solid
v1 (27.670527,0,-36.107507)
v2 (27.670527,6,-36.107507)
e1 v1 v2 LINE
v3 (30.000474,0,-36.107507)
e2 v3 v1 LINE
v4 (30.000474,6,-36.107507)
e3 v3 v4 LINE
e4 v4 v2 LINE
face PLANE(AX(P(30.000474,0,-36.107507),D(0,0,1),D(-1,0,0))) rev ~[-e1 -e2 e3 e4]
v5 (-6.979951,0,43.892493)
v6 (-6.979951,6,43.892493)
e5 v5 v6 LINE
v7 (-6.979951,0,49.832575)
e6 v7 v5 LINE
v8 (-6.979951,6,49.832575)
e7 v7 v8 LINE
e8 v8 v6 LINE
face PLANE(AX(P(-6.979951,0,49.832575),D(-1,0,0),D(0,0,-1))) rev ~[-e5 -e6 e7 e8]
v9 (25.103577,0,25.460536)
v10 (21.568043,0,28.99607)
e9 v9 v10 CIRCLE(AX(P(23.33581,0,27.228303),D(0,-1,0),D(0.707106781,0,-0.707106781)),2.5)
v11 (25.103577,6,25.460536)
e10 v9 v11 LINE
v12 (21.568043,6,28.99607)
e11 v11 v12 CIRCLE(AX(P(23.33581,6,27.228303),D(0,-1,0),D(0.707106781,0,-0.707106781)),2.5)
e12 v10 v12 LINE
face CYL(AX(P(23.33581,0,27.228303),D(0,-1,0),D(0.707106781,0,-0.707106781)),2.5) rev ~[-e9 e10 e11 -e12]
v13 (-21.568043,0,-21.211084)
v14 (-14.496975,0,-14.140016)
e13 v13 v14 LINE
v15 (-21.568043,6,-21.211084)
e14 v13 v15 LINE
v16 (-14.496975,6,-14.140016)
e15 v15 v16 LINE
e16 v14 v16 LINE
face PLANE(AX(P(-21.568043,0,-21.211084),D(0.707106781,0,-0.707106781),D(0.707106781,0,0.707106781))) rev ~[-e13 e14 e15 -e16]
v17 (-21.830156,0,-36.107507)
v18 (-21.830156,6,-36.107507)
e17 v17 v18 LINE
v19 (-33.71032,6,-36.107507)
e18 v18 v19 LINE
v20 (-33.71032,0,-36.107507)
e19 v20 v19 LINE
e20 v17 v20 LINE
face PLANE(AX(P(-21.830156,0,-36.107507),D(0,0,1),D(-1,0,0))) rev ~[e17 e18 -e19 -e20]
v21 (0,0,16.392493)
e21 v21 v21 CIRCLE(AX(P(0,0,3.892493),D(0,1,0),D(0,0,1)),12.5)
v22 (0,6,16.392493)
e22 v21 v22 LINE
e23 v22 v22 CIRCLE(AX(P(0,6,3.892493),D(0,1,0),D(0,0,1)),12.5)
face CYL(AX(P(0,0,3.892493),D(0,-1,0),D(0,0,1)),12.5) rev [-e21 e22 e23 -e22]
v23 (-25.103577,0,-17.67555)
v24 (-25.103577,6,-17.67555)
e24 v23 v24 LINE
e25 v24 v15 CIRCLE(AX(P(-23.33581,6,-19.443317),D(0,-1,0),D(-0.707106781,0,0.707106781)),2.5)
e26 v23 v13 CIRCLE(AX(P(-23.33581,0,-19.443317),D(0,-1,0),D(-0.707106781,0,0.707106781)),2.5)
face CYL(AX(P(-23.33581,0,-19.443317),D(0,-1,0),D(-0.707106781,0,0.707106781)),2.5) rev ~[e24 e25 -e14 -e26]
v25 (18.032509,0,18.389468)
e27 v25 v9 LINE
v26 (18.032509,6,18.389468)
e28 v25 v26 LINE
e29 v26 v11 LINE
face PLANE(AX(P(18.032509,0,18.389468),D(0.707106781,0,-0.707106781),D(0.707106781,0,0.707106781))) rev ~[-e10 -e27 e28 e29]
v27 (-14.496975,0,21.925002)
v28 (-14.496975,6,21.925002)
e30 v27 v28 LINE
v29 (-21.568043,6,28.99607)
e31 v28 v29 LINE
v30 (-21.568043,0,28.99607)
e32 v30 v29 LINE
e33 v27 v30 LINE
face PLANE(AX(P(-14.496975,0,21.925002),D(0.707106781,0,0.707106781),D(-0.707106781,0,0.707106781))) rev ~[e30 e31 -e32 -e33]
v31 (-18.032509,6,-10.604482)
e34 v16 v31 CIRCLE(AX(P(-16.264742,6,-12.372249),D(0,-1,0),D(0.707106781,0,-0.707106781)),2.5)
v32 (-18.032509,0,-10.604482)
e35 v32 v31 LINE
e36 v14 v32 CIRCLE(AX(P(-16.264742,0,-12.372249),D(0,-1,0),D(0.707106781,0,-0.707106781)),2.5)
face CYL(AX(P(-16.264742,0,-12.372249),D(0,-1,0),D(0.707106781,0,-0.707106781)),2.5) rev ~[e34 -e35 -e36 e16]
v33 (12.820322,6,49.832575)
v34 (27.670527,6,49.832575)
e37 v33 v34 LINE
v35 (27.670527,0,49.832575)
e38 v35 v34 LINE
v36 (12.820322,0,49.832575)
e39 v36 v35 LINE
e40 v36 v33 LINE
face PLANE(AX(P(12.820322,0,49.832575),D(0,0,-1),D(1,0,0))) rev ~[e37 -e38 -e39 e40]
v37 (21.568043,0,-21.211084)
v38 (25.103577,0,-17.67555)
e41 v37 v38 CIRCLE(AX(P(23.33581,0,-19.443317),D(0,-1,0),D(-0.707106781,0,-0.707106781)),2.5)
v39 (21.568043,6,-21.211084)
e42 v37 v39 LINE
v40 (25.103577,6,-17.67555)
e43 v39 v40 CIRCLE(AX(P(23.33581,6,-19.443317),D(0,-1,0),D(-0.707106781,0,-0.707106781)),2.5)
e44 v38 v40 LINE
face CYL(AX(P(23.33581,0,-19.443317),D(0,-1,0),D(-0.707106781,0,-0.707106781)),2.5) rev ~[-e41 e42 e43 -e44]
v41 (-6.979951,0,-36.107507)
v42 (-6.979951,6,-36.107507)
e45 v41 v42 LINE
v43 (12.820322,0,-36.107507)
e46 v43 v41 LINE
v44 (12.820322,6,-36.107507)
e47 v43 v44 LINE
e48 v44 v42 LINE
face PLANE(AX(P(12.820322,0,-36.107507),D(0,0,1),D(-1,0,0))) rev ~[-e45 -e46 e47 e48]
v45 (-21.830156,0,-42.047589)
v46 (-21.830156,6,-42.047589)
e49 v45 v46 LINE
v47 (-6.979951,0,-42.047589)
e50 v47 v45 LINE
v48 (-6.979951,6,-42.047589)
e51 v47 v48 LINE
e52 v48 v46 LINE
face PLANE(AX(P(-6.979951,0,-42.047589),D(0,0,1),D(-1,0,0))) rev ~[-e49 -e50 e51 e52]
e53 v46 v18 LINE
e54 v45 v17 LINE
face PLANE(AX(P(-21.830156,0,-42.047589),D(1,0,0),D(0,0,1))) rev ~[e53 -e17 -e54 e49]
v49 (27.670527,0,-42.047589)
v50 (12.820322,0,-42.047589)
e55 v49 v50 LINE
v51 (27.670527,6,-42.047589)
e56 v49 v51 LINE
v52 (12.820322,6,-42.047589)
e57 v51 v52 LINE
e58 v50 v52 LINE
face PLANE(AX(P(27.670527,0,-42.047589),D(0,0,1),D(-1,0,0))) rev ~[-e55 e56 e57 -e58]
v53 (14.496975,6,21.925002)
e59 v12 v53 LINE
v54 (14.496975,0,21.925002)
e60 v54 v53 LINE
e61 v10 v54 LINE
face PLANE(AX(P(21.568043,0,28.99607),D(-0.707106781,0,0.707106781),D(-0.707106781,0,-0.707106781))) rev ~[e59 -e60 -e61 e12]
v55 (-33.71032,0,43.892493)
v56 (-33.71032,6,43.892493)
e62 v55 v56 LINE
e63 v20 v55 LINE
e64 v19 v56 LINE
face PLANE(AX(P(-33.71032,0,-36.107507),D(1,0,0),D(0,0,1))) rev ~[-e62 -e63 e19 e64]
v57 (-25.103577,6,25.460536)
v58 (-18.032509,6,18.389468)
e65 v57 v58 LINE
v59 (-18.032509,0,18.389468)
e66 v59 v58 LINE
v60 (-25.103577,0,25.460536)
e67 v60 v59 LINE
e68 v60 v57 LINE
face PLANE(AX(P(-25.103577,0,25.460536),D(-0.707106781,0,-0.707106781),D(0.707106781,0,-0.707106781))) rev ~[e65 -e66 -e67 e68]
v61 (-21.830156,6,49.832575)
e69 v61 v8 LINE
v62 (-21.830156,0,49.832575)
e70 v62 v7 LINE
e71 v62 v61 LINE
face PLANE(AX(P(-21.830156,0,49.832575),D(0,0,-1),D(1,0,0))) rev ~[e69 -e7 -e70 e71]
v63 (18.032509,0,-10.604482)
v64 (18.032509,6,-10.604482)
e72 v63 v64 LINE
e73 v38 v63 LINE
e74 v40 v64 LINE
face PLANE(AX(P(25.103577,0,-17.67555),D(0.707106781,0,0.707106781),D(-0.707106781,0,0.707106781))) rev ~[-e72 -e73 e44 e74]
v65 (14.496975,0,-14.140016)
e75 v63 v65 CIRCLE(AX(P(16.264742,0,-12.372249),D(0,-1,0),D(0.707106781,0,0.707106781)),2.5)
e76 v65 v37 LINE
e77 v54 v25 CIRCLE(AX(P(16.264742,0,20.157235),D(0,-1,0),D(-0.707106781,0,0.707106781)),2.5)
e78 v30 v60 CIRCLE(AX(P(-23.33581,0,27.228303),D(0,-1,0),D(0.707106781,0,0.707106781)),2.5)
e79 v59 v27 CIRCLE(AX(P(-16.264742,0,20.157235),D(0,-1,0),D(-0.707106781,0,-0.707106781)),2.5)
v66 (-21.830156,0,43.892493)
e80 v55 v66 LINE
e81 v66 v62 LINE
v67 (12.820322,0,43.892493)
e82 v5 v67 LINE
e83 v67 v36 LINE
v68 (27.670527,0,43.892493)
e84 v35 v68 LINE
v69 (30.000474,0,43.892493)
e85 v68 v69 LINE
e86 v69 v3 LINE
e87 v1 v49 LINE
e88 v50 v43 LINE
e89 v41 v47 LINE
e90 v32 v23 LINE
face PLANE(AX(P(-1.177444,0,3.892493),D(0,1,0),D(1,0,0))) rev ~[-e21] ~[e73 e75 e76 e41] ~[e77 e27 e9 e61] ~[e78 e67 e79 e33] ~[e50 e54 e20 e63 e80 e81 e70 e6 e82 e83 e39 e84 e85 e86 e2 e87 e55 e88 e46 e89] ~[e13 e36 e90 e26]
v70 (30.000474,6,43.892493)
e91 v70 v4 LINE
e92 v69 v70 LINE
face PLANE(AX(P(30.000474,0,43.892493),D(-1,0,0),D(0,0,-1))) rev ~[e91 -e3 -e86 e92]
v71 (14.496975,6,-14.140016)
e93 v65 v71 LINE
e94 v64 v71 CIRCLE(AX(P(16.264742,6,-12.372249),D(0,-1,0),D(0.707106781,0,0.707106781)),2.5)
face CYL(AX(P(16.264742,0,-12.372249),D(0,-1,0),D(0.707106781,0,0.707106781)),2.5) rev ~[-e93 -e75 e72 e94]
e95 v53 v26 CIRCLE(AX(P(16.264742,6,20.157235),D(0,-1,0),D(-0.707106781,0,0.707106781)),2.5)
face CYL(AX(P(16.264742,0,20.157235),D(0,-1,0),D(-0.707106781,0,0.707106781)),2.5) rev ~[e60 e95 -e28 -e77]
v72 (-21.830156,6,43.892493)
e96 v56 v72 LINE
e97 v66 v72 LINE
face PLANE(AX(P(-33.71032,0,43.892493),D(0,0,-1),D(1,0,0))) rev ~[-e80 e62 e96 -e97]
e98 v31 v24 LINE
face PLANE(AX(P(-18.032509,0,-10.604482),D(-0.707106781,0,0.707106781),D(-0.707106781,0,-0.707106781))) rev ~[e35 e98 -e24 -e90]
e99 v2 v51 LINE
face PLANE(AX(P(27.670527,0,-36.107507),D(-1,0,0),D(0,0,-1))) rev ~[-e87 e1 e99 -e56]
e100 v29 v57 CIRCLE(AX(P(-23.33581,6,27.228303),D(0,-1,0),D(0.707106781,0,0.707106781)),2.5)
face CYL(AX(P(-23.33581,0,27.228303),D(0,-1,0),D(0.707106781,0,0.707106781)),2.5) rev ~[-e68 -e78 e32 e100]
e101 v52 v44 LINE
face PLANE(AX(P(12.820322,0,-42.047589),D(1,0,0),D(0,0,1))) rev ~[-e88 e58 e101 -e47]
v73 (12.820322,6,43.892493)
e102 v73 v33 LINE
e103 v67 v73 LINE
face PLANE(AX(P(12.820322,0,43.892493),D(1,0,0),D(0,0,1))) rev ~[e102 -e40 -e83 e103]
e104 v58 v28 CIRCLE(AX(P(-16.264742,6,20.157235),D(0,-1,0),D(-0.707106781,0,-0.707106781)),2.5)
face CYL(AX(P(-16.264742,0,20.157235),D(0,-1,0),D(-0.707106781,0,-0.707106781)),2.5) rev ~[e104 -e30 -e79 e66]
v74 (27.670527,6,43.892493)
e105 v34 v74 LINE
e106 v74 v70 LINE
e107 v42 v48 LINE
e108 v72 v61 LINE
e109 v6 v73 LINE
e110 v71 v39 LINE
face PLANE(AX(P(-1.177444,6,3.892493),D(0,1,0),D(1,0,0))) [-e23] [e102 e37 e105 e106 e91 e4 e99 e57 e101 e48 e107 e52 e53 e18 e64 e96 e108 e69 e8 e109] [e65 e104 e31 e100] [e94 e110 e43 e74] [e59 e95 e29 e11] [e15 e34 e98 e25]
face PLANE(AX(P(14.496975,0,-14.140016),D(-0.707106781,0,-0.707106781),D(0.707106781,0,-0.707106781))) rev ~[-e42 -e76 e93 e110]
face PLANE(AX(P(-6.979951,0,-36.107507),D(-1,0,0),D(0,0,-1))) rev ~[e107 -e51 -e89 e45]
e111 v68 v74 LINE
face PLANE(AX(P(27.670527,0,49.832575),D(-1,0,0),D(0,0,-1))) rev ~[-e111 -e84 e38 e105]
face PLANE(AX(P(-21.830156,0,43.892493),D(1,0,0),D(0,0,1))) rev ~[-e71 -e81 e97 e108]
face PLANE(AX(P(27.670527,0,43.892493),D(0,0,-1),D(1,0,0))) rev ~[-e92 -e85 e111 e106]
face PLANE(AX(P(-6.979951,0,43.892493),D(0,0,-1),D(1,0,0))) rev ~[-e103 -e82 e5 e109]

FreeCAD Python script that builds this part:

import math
import FreeCAD as App
import Part
import Sketcher

doc = App.newDocument("Part")
params = doc.addObject("Spreadsheet::Sheet", "Params")
for row, (alias, value) in enumerate([
    ("sketch1_diameter", "25 mm"),
    ("sketch1_radius", "2.5 mm"),
    ("sketch1_height", "80 mm"),
    ("sketch1_length", "10 mm"),
    ("pad1_length", "6 mm"),
], start=1):
    params.set(f"A{row}", alias)
    params.set(f"B{row}", "=" + value)
    params.setAlias(f"B{row}", alias)

body = doc.addObject("PartDesign::Body", "Body")

sketch1 = doc.addObject("Sketcher::SketchObject", "Sketch")
body.addObject(sketch1)
sketch1.AttachmentSupport = (doc.XZ_Plane, [""])
sketch1.MapMode = "FlatFace"
sketch1.addGeometry([
    Part.LineSegment(App.Vector(-33.7, -36.1, 0), App.Vector(-33.7, 43.9, 0)),
    Part.LineSegment(App.Vector(-33.7, 43.9, 0), App.Vector(-21.8, 43.9, 0)),
    Part.LineSegment(App.Vector(-21.8, 43.9, 0), App.Vector(-21.8, 49.8, 0)),
    Part.LineSegment(App.Vector(-21.8, 49.8, 0), App.Vector(-7, 49.8, 0)),
    Part.LineSegment(App.Vector(-7, 49.8, 0), App.Vector(-7, 43.9, 0)),
    Part.LineSegment(App.Vector(-7, 43.9, 0), App.Vector(12.8, 43.9, 0)),
    Part.LineSegment(App.Vector(12.8, 43.9, 0), App.Vector(12.8, 49.8, 0)),
    Part.LineSegment(App.Vector(12.8, 49.8, 0), App.Vector(27.7, 49.8, 0)),
    Part.LineSegment(App.Vector(27.7, 49.8, 0), App.Vector(27.7, 43.9, 0)),
    Part.LineSegment(App.Vector(27.7, 43.9, 0), App.Vector(30, 43.9, 0)),
    Part.LineSegment(App.Vector(30, 43.9, 0), App.Vector(30, -36.1, 0)),
    Part.LineSegment(App.Vector(30, -36.1, 0), App.Vector(27.7, -36.1, 0)),
    Part.LineSegment(App.Vector(27.7, -36.1, 0), App.Vector(27.7, -42, 0)),
    Part.LineSegment(App.Vector(27.7, -42, 0), App.Vector(12.8, -42, 0)),
    Part.LineSegment(App.Vector(12.8, -42, 0), App.Vector(12.8, -36.1, 0)),
    Part.LineSegment(App.Vector(12.8, -36.1, 0), App.Vector(-7, -36.1, 0)),
    Part.LineSegment(App.Vector(-7, -36.1, 0), App.Vector(-7, -42, 0)),
    Part.LineSegment(App.Vector(-7, -42, 0), App.Vector(-21.8, -42, 0)),
    Part.LineSegment(App.Vector(-21.8, -42, 0), App.Vector(-21.8, -36.1, 0)),
    Part.LineSegment(App.Vector(-21.8, -36.1, 0), App.Vector(-33.7, -36.1, 0)),
    Part.ArcOfCircle(Part.Circle(App.Vector(-23.3, 27.2, 0), App.Vector(0, 0, 1), 2.5), math.radians(45), math.radians(225)),
    Part.LineSegment(App.Vector(-25.1, 25.5, 0), App.Vector(-18, 18.4, 0)),
    Part.ArcOfCircle(Part.Circle(App.Vector(-16.3, 20.2, 0), App.Vector(0, 0, 1), 2.5), math.radians(-135), math.radians(45)),
    Part.LineSegment(App.Vector(-14.5, 21.9, 0), App.Vector(-21.6, 29, 0)),
    Part.ArcOfCircle(Part.Circle(App.Vector(23.3, 27.2, 0), App.Vector(0, 0, 1), 2.5), math.radians(-45), math.radians(135)),
    Part.LineSegment(App.Vector(21.6, 29, 0), App.Vector(14.5, 21.9, 0)),
    Part.ArcOfCircle(Part.Circle(App.Vector(16.3, 20.2, 0), App.Vector(0, 0, 1), 2.5), math.radians(135), math.radians(315)),
    Part.LineSegment(App.Vector(18, 18.4, 0), App.Vector(25.1, 25.5, 0)),
    Part.ArcOfCircle(Part.Circle(App.Vector(-23.3, -19.4, 0), App.Vector(0, 0, 1), 2.5), math.radians(135), math.radians(315)),
    Part.LineSegment(App.Vector(-21.6, -21.2, 0), App.Vector(-14.5, -14.1, 0)),
    Part.ArcOfCircle(Part.Circle(App.Vector(-16.3, -12.4, 0), App.Vector(0, 0, 1), 2.5), math.radians(-45), math.radians(135)),
    Part.LineSegment(App.Vector(-18, -10.6, 0), App.Vector(-25.1, -17.7, 0)),
    Part.Circle(App.Vector(0, 3.9, 0), App.Vector(0, 0, 1), 12.5),
    Part.ArcOfCircle(Part.Circle(App.Vector(23.3, -19.4, 0), App.Vector(0, 0, 1), 2.5), math.radians(-135), math.radians(45)),
    Part.LineSegment(App.Vector(25.1, -17.7, 0), App.Vector(18, -10.6, 0)),
    Part.ArcOfCircle(Part.Circle(App.Vector(16.3, -12.4, 0), App.Vector(0, 0, 1), 2.5), math.radians(45), math.radians(225)),
    Part.LineSegment(App.Vector(14.5, -14.1, 0), App.Vector(21.6, -21.2, 0)),
], False)
sketch1.addConstraint([
    Sketcher.Constraint("Coincident", 0, 2, 1, 1),
    Sketcher.Constraint("Coincident", 1, 2, 2, 1),
    Sketcher.Constraint("Coincident", 2, 2, 3, 1),
    Sketcher.Constraint("Coincident", 3, 2, 4, 1),
    Sketcher.Constraint("Coincident", 4, 2, 5, 1),
    Sketcher.Constraint("Coincident", 5, 2, 6, 1),
    Sketcher.Constraint("Coincident", 6, 2, 7, 1),
    Sketcher.Constraint("Coincident", 7, 2, 8, 1),
    Sketcher.Constraint("Coincident", 8, 2, 9, 1),
    Sketcher.Constraint("Coincident", 9, 2, 10, 1),
    Sketcher.Constraint("Coincident", 10, 2, 11, 1),
    Sketcher.Constraint("Coincident", 11, 2, 12, 1),
    Sketcher.Constraint("Coincident", 12, 2, 13, 1),
    Sketcher.Constraint("Coincident", 13, 2, 14, 1),
    Sketcher.Constraint("Coincident", 14, 2, 15, 1),
    Sketcher.Constraint("Coincident", 15, 2, 16, 1),
    Sketcher.Constraint("Coincident", 16, 2, 17, 1),
    Sketcher.Constraint("Coincident", 17, 2, 18, 1),
    Sketcher.Constraint("Coincident", 18, 2, 19, 1),
    Sketcher.Constraint("Coincident", 19, 2, 0, 1),
    Sketcher.Constraint("Tangent", 20, 2, 21, 1),
    Sketcher.Constraint("Tangent", 21, 2, 22, 1),
    Sketcher.Constraint("Tangent", 22, 2, 23, 1),
    Sketcher.Constraint("Tangent", 23, 2, 20, 1),
    Sketcher.Constraint("Tangent", 24, 2, 25, 1),
    Sketcher.Constraint("Tangent", 25, 2, 26, 1),
    Sketcher.Constraint("Tangent", 26, 2, 27, 1),
    Sketcher.Constraint("Tangent", 27, 2, 24, 1),
    Sketcher.Constraint("Tangent", 28, 2, 29, 1),
    Sketcher.Constraint("Tangent", 29, 2, 30, 1),
    Sketcher.Constraint("Tangent", 30, 2, 31, 1),
    Sketcher.Constraint("Tangent", 31, 2, 28, 1),
    Sketcher.Constraint("Tangent", 33, 2, 34, 1),
    Sketcher.Constraint("Tangent", 34, 2, 35, 1),
    Sketcher.Constraint("Tangent", 35, 2, 36, 1),
    Sketcher.Constraint("Tangent", 36, 2, 33, 1),
    Sketcher.Constraint("Vertical", 0),
    Sketcher.Constraint("Horizontal", 1),
    Sketcher.Constraint("Vertical", 2),
    Sketcher.Constraint("Horizontal", 3),
    Sketcher.Constraint("Vertical", 4),
    Sketcher.Constraint("Horizontal", 5),
    Sketcher.Constraint("Vertical", 6),
    Sketcher.Constraint("Horizontal", 7),
    Sketcher.Constraint("Vertical", 8),
    Sketcher.Constraint("Horizontal", 9),
    Sketcher.Constraint("Vertical", 10),
    Sketcher.Constraint("Horizontal", 11),
    Sketcher.Constraint("Vertical", 12),
    Sketcher.Constraint("Horizontal", 13),
    Sketcher.Constraint("Vertical", 14),
    Sketcher.Constraint("Horizontal", 15),
    Sketcher.Constraint("Vertical", 16),
    Sketcher.Constraint("Horizontal", 17),
    Sketcher.Constraint("Vertical", 18),
    Sketcher.Constraint("Horizontal", 19),
    Sketcher.Constraint("Equal", 20, 22),
    Sketcher.Constraint("Equal", 22, 24),
    Sketcher.Constraint("Equal", 24, 26),
    Sketcher.Constraint("Equal", 26, 28),
    Sketcher.Constraint("Equal", 28, 30),
    Sketcher.Constraint("Equal", 30, 33),
    Sketcher.Constraint("Equal", 33, 35),
    Sketcher.Constraint("Symmetric", 20, 3, 24, 3, -2),
    Sketcher.Constraint("Symmetric", 22, 3, 26, 3, -2),
    Sketcher.Constraint("Symmetric", 28, 3, 33, 3, -2),
    Sketcher.Constraint("Symmetric", 30, 3, 35, 3, -2),
    Sketcher.Constraint("PointOnObject", 32, 3, -2),
    Sketcher.Constraint("Perpendicular", 23, 25),
    Sketcher.Constraint("Parallel", 27, 29),
    Sketcher.Constraint("Horizontal", 1, 2, 4, 2),
    Sketcher.Constraint("Horizontal", 3, 2, 6, 2),
    Sketcher.Constraint("Horizontal", 5, 2, 8, 2),
    Sketcher.Constraint("Horizontal", 11, 2, 14, 2),
    Sketcher.Constraint("Horizontal", 13, 2, 16, 2),
    Sketcher.Constraint("Horizontal", 15, 2, 18, 2),
    Sketcher.Constraint("Vertical", 20, 3, 28, 3),
    Sketcher.Constraint("Vertical", 22, 3, 30, 3),
    Sketcher.Constraint("Vertical", 8, 2, 11, 2),
    Sketcher.Constraint("Vertical", 6, 2, 13, 2),
    Sketcher.Constraint("Vertical", 4, 2, 15, 2),
    Sketcher.Constraint("Vertical", 2, 2, 17, 2),
    Sketcher.Constraint("Equal", 3, 7),
    Sketcher.Constraint("Equal", 8, 12),
    Sketcher.Constraint("Diameter", 32, 25.0),
    Sketcher.Constraint("Radius", 20, 2.5),
    Sketcher.Constraint("DistanceY", 0, 1, 0, 2, 80.0),
    Sketcher.Constraint("Distance", 21, 10.0),
    Sketcher.Constraint("DistanceY", 32, 3, 0, 2, 40.0),
    Sketcher.Constraint("DistanceY", -1, 1, 22, 2, 21.925002),
    Sketcher.Constraint("DistanceY", 2, 1, 2, 2, 5.940082),
    Sketcher.Constraint("DistanceX", 1, 2, 26, 3, 38.094898),
    Sketcher.Constraint("DistanceX", 1, 1, 1, 2, 11.880164),
    Sketcher.Constraint("DistanceX", 3, 1, 3, 2, 14.850205),
    Sketcher.Constraint("DistanceX", 5, 1, 5, 2, 19.800273),
    Sketcher.Constraint("DistanceX", 9, 1, 9, 2, 2.329947),
    Sketcher.Constraint("DistanceX", 20, 3, -1, 1, 23.33581),
    Sketcher.Constraint("DistanceY", 30, 3, -1, 1, 12.372249),
    Sketcher.Constraint("DistanceY", 12, 2, -1, 1, 42.047589),
])
sketch1.setExpression("Constraints[84]", "Params.sketch1_diameter")
sketch1.setExpression("Constraints[85]", "Params.sketch1_radius")
sketch1.setExpression("Constraints[86]", "Params.sketch1_height")
sketch1.setExpression("Constraints[87]", "Params.sketch1_length")
pad1 = doc.addObject("PartDesign::Pad", "Pad")
body.addObject(pad1)
pad1.Profile = sketch1
pad1.setExpression("Length", "Params.pad1_length")
pad1.Reversed = True

doc.recompute()
